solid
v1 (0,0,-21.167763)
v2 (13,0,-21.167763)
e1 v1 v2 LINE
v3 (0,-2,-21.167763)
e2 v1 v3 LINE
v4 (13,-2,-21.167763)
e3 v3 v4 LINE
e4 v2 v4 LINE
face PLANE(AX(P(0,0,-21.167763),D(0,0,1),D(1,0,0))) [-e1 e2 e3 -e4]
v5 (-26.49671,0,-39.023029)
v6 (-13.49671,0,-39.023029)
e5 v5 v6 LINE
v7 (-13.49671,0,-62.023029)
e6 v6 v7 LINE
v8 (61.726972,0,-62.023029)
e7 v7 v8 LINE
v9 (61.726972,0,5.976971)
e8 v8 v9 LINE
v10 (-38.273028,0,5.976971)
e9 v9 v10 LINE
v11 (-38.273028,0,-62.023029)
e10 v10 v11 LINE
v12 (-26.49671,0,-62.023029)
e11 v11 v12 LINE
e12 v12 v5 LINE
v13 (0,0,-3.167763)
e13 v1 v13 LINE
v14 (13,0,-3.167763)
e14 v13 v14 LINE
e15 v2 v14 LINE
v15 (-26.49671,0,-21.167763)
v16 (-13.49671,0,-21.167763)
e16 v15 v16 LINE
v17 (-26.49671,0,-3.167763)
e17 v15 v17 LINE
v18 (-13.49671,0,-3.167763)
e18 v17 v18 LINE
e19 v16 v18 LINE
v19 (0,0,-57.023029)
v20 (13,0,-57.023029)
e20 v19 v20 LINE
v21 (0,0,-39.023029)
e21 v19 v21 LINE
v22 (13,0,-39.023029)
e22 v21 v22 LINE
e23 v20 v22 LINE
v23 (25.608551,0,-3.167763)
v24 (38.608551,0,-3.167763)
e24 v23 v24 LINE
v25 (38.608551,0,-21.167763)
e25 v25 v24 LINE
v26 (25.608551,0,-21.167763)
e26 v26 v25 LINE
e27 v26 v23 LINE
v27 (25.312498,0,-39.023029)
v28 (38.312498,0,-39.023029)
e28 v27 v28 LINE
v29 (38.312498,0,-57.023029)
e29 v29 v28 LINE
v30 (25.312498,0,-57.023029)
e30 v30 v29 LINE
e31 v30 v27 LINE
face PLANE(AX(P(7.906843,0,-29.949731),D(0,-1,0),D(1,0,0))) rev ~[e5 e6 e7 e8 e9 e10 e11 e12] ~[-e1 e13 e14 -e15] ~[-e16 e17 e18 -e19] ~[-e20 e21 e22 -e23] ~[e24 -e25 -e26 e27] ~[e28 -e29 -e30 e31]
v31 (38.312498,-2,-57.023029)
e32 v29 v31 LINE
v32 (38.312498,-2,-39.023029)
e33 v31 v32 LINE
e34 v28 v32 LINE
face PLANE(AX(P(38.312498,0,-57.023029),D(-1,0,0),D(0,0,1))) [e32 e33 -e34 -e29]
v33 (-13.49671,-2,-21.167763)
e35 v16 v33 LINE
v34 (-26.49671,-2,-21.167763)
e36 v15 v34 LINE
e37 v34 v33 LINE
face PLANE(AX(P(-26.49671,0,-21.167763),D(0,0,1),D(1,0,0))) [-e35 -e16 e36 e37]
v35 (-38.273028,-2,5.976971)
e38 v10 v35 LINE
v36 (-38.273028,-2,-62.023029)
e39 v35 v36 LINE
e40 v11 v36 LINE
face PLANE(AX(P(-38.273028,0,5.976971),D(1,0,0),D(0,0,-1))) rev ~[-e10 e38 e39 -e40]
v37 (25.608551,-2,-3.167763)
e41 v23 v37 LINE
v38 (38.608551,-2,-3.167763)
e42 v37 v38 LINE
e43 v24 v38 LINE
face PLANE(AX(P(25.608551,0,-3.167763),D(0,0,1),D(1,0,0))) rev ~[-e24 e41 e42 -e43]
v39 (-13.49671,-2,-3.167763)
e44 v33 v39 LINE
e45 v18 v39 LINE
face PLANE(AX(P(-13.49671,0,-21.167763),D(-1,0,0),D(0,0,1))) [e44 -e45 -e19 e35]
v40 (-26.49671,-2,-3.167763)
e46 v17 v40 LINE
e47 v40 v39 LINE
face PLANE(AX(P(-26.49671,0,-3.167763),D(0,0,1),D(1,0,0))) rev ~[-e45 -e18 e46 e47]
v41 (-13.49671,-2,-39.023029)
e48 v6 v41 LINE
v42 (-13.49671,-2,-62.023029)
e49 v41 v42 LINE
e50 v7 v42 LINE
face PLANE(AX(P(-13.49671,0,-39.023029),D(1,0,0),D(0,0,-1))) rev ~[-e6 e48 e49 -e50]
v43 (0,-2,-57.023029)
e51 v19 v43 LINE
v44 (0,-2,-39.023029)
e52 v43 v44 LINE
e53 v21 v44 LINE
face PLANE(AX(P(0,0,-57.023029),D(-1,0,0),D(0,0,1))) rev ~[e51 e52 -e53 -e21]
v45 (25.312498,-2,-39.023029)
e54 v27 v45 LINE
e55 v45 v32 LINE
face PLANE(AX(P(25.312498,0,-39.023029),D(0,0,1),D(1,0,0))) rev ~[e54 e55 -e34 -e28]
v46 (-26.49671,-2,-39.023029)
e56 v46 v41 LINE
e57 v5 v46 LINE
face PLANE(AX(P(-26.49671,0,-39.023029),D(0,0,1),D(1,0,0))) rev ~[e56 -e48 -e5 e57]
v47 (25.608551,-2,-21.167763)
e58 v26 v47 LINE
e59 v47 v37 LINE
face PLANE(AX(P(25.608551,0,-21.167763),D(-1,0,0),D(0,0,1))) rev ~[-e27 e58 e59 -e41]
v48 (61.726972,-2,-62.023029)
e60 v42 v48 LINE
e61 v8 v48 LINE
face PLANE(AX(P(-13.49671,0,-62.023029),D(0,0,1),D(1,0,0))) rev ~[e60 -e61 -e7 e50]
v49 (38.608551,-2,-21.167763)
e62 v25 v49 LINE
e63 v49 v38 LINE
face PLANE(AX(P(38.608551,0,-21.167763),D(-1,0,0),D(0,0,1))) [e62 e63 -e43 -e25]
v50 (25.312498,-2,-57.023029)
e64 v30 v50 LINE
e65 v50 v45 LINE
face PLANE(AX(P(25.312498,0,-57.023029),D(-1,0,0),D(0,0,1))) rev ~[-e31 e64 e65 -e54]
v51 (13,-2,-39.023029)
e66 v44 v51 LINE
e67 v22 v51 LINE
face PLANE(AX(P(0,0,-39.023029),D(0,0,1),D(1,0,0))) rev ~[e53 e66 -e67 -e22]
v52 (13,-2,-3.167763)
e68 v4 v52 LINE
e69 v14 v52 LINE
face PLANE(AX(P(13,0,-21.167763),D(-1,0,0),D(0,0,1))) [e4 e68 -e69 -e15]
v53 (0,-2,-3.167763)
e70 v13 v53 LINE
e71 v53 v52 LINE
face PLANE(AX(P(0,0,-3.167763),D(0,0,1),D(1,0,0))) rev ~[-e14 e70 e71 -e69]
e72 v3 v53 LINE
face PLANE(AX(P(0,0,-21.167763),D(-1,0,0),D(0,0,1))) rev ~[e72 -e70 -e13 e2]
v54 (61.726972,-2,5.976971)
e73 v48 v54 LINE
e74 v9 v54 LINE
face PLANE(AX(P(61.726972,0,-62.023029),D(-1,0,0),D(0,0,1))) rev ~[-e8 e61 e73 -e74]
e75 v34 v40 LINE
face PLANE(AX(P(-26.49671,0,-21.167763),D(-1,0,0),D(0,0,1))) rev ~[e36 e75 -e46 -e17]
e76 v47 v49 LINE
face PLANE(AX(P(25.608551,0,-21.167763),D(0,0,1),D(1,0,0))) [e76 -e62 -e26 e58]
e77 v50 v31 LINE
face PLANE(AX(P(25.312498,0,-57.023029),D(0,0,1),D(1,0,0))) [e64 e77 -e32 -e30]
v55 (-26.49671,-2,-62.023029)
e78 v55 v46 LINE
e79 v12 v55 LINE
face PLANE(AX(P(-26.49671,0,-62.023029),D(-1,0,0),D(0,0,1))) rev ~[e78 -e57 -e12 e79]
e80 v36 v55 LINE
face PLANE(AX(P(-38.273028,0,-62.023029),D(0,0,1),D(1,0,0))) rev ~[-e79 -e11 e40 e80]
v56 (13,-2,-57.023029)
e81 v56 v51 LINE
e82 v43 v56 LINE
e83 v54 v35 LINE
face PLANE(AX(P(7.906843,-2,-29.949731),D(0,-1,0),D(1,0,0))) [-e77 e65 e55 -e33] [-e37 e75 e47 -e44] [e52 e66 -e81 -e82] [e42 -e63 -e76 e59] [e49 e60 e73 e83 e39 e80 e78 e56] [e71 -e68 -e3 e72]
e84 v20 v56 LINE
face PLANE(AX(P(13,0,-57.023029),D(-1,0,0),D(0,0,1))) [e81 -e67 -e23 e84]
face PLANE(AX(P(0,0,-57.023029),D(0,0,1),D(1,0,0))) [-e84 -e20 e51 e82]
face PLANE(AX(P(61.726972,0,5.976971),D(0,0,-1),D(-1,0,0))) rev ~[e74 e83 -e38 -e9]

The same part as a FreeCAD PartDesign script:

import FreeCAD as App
import Part
import Sketcher
from FreeCAD import Vector
Q = App.Units.Quantity


def add_polygon(sketch, points):
    """Adds a closed chain of lines whose ends are joined by coincident constraints."""
    first, n = sketch.GeometryCount, len(points)
    for a, b in zip(points, points[1:] + points[:1]):
        sketch.addGeometry(Part.LineSegment(App.Vector(*a, 0), App.Vector(*b, 0)), False)
    for i in range(n):
        sketch.addConstraint(Sketcher.Constraint("Coincident", first + i, 2, first + (i + 1) % n, 1))

doc = App.newDocument("Part")
body = doc.addObject("PartDesign::Body", "Body")

sketch1 = body.newObject("Sketcher::SketchObject", "Sketch")
sketch1.AttachmentSupport = (doc.getObject("XZ_Plane"), [""])
sketch1.MapMode = "FlatFace"
add_polygon(sketch1, [(62, 6), (-38, 6), (-38, -62), (-26, -62), (-26, -39), (-13, -39), (-13, -62), (62, -62)])
add_polygon(sketch1, [(13, -57), (0, -57), (0, -39), (13, -39)])
add_polygon(sketch1, [(38, -57), (25, -57), (25, -39), (38, -39)])
add_polygon(sketch1, [(-13, -21), (-26, -21), (-26, -3), (-13, -3)])
add_polygon(sketch1, [(13, -21), (0, -21), (0, -3), (13, -3)])
add_polygon(sketch1, [(39, -21), (26, -21), (26, -3), (39, -3)])
sketch1.addConstraint([
    Sketcher.Constraint("Horizontal", 0),
    Sketcher.Constraint("Vertical", 1),
    Sketcher.Constraint("Horizontal", 2),
    Sketcher.Constraint("Vertical", 3),
    Sketcher.Constraint("Horizontal", 4),
    Sketcher.Constraint("Vertical", 5),
    Sketcher.Constraint("Horizontal", 6),
    Sketcher.Constraint("Vertical", 7),
    Sketcher.Constraint("Horizontal", 8),
    Sketcher.Constraint("Vertical", 9),
    Sketcher.Constraint("Horizontal", 10),
    Sketcher.Constraint("Vertical", 11),
    Sketcher.Constraint("Horizontal", 12),
    Sketcher.Constraint("Vertical", 13),
    Sketcher.Constraint("Horizontal", 14),
    Sketcher.Constraint("Vertical", 15),
    Sketcher.Constraint("Horizontal", 16),
    Sketcher.Constraint("Vertical", 17),
    Sketcher.Constraint("Horizontal", 18),
    Sketcher.Constraint("Vertical", 19),
    Sketcher.Constraint("Horizontal", 20),
    Sketcher.Constraint("Vertical", 21),
    Sketcher.Constraint("Horizontal", 22),
    Sketcher.Constraint("Vertical", 23),
    Sketcher.Constraint("Horizontal", 24),
    Sketcher.Constraint("Vertical", 25),
    Sketcher.Constraint("Horizontal", 26),
    Sketcher.Constraint("Vertical", 27),
    Sketcher.Constraint("PointOnObject", 8, 2, -2),
    Sketcher.Constraint("PointOnObject", 20, 2, -2),
    Sketcher.Constraint("Horizontal", 2, 2, 5, 2),
    Sketcher.Constraint("Horizontal", 4, 2, 9, 2),
    Sketcher.Constraint("Horizontal", 11, 2, 12, 2),
    Sketcher.Constraint("Horizontal", 10, 2, 13, 2),
    Sketcher.Constraint("Horizontal", 19, 2, 20, 2),
    Sketcher.Constraint("Horizontal", 18, 2, 21, 2),
    Sketcher.Constraint("Horizontal", 23, 2, 24, 2),
    Sketcher.Constraint("Horizontal", 22, 2, 25, 2),
    Sketcher.Constraint("Vertical", 3, 2, 16, 2),
    Sketcher.Constraint("Vertical", 5, 2, 18, 2),
    Sketcher.Constraint("Vertical", 11, 2, 22, 2),
    Sketcher.Constraint("Equal", 4, 8),
    Sketcher.Constraint("Equal", 10, 12),
    Sketcher.Constraint("Equal", 22, 24),
    Sketcher.Constraint("Equal", 15, 17),
    Sketcher.Constraint("DistanceX", 0, 2, 0, 1, Q("100 mm")),
    Sketcher.Constraint("DistanceX", 4, 1, 4, 2, Q("13 mm")),
    Sketcher.Constraint("DistanceY", 1, 2, 1, 1, Q("68 mm")),
    Sketcher.Constraint("DistanceY", 3, 1, 3, 2, Q("23 mm")),
    Sketcher.Constraint("DistanceY", 9, 1, 9, 2, Q("18 mm")),
    Sketcher.Constraint("DistanceX", 6, 1, 6, 2, Q("75.223682 mm")),
    Sketcher.Constraint("DistanceX", -1, 1, 12, 2, Q("25.312498 mm")),
    Sketcher.Constraint("DistanceY", -1, 1, 0, 2, Q("5.976971 mm")),
    Sketcher.Constraint("DistanceX", 2, 2, -1, 1, Q("26.49671 mm")),
    Sketcher.Constraint("DistanceX", -1, 1, 24, 2, Q("25.608551 mm")),
    Sketcher.Constraint("DistanceY", 16, 2, -1, 1, Q("21.167763 mm")),
])
pad1 = body.newObject("PartDesign::Pad", "Pad")
pad1.Profile = sketch1
pad1.Length = 2

doc.recompute()
